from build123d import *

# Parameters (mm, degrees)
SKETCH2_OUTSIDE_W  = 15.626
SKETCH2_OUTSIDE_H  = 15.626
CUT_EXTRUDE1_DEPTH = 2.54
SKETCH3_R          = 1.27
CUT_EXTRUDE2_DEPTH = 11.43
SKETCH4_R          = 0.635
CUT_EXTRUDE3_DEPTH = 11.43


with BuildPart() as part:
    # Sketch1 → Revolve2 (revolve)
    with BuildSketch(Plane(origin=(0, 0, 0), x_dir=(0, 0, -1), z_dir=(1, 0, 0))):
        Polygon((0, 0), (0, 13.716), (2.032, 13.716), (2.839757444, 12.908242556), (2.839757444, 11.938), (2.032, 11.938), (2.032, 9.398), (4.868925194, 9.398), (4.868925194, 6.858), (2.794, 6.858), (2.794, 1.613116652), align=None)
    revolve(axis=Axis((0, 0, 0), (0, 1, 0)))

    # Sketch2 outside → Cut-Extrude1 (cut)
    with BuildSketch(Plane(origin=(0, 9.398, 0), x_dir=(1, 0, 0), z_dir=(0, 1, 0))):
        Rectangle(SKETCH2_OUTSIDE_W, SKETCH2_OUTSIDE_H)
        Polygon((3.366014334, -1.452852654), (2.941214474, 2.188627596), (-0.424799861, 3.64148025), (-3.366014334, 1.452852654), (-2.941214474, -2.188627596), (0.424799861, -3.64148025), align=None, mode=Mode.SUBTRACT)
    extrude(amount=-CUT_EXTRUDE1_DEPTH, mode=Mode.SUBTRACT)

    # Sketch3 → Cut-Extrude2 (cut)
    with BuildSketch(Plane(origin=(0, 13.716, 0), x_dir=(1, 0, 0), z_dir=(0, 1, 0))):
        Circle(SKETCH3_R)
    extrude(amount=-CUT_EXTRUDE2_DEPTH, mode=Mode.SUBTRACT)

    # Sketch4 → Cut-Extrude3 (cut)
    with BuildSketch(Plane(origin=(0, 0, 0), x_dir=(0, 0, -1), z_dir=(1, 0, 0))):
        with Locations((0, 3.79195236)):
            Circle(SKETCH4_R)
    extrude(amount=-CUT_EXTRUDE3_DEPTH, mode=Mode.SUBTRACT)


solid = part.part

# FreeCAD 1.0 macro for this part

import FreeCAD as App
import Part
import Sketcher

V = App.Vector
Q = App.Units.Quantity


def add_polygon(sketch, points):
    """Adds a closed chain of lines whose ends are joined by coincident constraints."""
    first, n = sketch.GeometryCount, len(points)
    for a, b in zip(points, points[1:] + points[:1]):
        sketch.addGeometry(Part.LineSegment(App.Vector(*a, 0), App.Vector(*b, 0)), False)
    for i in range(n):
        sketch.addConstraint(Sketcher.Constraint("Coincident", first + i, 2, first + (i + 1) % n, 1))

doc = App.newDocument("Part")
body = doc.addObject("PartDesign::Body", "Body")

# Sketch on YZ plane
sketch1 = body.newObject("Sketcher::SketchObject", "Sketch")
sketch1.AttachmentSupport = (doc.getObject("YZ_Plane"), [""])
sketch1.MapMode = "FlatFace"
add_polygon(sketch1, [(13.7, 0), (0, 0), (1.6, -2.8), (6.9, -2.8), (6.9, -4.9), (9.4, -4.9), (9.4, -2), (11.9, -2), (11.9, -2.8), (12.9, -2.8), (13.7, -2)])  # lines 0-10
sketch1.addConstraint(Sketcher.Constraint("Horizontal", 0))
sketch1.addConstraint(Sketcher.Constraint("Horizontal", 2))
sketch1.addConstraint(Sketcher.Constraint("Vertical", 3))
sketch1.addConstraint(Sketcher.Constraint("Horizontal", 4))
sketch1.addConstraint(Sketcher.Constraint("Vertical", 5))
sketch1.addConstraint(Sketcher.Constraint("Horizontal", 6))
sketch1.addConstraint(Sketcher.Constraint("Vertical", 7))
sketch1.addConstraint(Sketcher.Constraint("Horizontal", 8))
sketch1.addConstraint(Sketcher.Constraint("Vertical", 10))
sketch1.addConstraint(Sketcher.Constraint("Coincident", 0, 2, -1, 1))
sketch1.addConstraint(Sketcher.Constraint("Horizontal", 6, 2, 9, 2))
sketch1.addConstraint(Sketcher.Constraint("Equal", 4, 6))
sketch1.addConstraint(Sketcher.Constraint("DistanceX", 4, 1, 4, 2, Q("0.1 in")))
sketch1.addConstraint(Sketcher.Constraint("Angle", 1, Q("-60 deg")))
sketch1.addConstraint(Sketcher.Constraint("Angle", 9, Q("45 deg")))
sketch1.addConstraint(Sketcher.Constraint("DistanceX", 0, 2, 0, 1, Q("0.54 in")))
sketch1.addConstraint(Sketcher.Constraint("DistanceY", 10, 1, 10, 2, Q("0.08 in")))
sketch1.addConstraint(Sketcher.Constraint("DistanceY", 1, 2, -1, 1, Q("0.11 in")))
sketch1.addConstraint(Sketcher.Constraint("DistanceX", -1, 1, 2, 2, Q("0.27 in")))
sketch1.addConstraint(Sketcher.Constraint("Distance", 9, Q("1.142342 mm")))
sketch1.addConstraint(Sketcher.Constraint("DistanceY", 3, 2, 3, 1, Q("2.074925 mm")))
revolution = body.newObject("PartDesign::Revolution", "Revolution")
revolution.Profile = sketch1
revolution.ReferenceAxis = (sketch1, ["H_Axis"])
revolution.Angle = 360

# Sketch on XZ plane
sketch2 = body.newObject("Sketcher::SketchObject", "Sketch001")
sketch2.AttachmentSupport = (doc.getObject("XZ_Plane"), [""])
sketch2.MapMode = "FlatFace"
sketch2.AttachmentOffset = App.Placement(V(0, 0, -0.37 * 25.4), App.Rotation())
add_polygon(sketch2, [(-7.8, -7.8), (-7.8, 7.8), (7.8, 7.8), (7.8, -7.8)])  # lines 0-3
add_polygon(sketch2, [(2.9, -2.2), (3.4, 1.5), (0.4, 3.6), (-2.9, 2.2), (-3.4, -1.5), (-0.4, -3.6)])  # lines 4-9
sketch2.addConstraint(Sketcher.Constraint("Vertical", 0))
sketch2.addConstraint(Sketcher.Constraint("Horizontal", 1))
sketch2.addConstraint(Sketcher.Constraint("Vertical", 2))
sketch2.addConstraint(Sketcher.Constraint("Horizontal", 3))
sketch2.addConstraint(Sketcher.Constraint("Symmetric", 0, 2, 2, 2, -1, 1))
sketch2.addConstraint(Sketcher.Constraint("Symmetric", 4, 2, 7, 2, -1, 1))
sketch2.addConstraint(Sketcher.Constraint("Symmetric", 5, 2, 8, 2, -1, 1))
sketch2.addConstraint(Sketcher.Constraint("Symmetric", 6, 2, 9, 2, -1, 1))
sketch2.addConstraint(Sketcher.Constraint("Equal", 3, 0))
sketch2.addConstraint(Sketcher.Constraint("Equal", 4, 5))
sketch2.addConstraint(Sketcher.Constraint("Equal", 5, 6))
sketch2.addConstraint(Sketcher.Constraint("DistanceX", 1, 1, 1, 2, Q("15.626 mm")))
sketch2.addConstraint(Sketcher.Constraint("DistanceX", -1, 1, 5, 2, Q("0.4248 mm")))
sketch2.addConstraint(Sketcher.Constraint("DistanceX", 7, 2, 6, 2, Q("0.4248 mm")))
sketch2.addConstraint(Sketcher.Constraint("DistanceY", -1, 1, 5, 2, Q("3.64148 mm")))
sketch2.addConstraint(Sketcher.Constraint("DistanceX", 6, 2, 4, 2, Q("6.307229 mm")))
pocket1 = body.newObject("PartDesign::Pocket", "Pocket")
pocket1.Profile = sketch2
pocket1.Length = Q("0.1 in")
pocket1.Reversed = True

# Sketch on XZ plane
sketch3 = body.newObject("Sketcher::SketchObject", "Sketch002")
sketch3.AttachmentSupport = (doc.getObject("XZ_Plane"), [""])
sketch3.MapMode = "FlatFace"
sketch3.AttachmentOffset = App.Placement(V(0, 0, -0.54 * 25.4), App.Rotation())
sketch3.addGeometry(Part.Circle(V(0, 0, 0), V(0, 0, 1), 1.3), False)
sketch3.addConstraint(Sketcher.Constraint("Coincident", 0, 3, -1, 1))
sketch3.addConstraint(Sketcher.Constraint("Diameter", 0, Q("0.1 in")))
pocket2 = body.newObject("PartDesign::Pocket", "Pocket001")
pocket2.Profile = sketch3
pocket2.Length = Q("0.45 in")
pocket2.Reversed = True

# Sketch on YZ plane
sketch4 = body.newObject("Sketcher::SketchObject", "Sketch003")
sketch4.AttachmentSupport = (doc.getObject("YZ_Plane"), [""])
sketch4.MapMode = "FlatFace"
sketch4.addGeometry(Part.Circle(V(3.8, 0, 0), V(0, 0, 1), 0.6), False)
sketch4.addConstraint(Sketcher.Constraint("PointOnObject", 0, 3, -1))
sketch4.addConstraint(Sketcher.Constraint("Diameter", 0, Q("0.05 in")))
sketch4.addConstraint(Sketcher.Constraint("DistanceX", -1, 1, 0, 3, Q("3.791952 mm")))
pocket3 = body.newObject("PartDesign::Pocket", "Pocket002")
pocket3.Profile = sketch4
pocket3.Length = Q("0.45 in")

doc.recompute()
